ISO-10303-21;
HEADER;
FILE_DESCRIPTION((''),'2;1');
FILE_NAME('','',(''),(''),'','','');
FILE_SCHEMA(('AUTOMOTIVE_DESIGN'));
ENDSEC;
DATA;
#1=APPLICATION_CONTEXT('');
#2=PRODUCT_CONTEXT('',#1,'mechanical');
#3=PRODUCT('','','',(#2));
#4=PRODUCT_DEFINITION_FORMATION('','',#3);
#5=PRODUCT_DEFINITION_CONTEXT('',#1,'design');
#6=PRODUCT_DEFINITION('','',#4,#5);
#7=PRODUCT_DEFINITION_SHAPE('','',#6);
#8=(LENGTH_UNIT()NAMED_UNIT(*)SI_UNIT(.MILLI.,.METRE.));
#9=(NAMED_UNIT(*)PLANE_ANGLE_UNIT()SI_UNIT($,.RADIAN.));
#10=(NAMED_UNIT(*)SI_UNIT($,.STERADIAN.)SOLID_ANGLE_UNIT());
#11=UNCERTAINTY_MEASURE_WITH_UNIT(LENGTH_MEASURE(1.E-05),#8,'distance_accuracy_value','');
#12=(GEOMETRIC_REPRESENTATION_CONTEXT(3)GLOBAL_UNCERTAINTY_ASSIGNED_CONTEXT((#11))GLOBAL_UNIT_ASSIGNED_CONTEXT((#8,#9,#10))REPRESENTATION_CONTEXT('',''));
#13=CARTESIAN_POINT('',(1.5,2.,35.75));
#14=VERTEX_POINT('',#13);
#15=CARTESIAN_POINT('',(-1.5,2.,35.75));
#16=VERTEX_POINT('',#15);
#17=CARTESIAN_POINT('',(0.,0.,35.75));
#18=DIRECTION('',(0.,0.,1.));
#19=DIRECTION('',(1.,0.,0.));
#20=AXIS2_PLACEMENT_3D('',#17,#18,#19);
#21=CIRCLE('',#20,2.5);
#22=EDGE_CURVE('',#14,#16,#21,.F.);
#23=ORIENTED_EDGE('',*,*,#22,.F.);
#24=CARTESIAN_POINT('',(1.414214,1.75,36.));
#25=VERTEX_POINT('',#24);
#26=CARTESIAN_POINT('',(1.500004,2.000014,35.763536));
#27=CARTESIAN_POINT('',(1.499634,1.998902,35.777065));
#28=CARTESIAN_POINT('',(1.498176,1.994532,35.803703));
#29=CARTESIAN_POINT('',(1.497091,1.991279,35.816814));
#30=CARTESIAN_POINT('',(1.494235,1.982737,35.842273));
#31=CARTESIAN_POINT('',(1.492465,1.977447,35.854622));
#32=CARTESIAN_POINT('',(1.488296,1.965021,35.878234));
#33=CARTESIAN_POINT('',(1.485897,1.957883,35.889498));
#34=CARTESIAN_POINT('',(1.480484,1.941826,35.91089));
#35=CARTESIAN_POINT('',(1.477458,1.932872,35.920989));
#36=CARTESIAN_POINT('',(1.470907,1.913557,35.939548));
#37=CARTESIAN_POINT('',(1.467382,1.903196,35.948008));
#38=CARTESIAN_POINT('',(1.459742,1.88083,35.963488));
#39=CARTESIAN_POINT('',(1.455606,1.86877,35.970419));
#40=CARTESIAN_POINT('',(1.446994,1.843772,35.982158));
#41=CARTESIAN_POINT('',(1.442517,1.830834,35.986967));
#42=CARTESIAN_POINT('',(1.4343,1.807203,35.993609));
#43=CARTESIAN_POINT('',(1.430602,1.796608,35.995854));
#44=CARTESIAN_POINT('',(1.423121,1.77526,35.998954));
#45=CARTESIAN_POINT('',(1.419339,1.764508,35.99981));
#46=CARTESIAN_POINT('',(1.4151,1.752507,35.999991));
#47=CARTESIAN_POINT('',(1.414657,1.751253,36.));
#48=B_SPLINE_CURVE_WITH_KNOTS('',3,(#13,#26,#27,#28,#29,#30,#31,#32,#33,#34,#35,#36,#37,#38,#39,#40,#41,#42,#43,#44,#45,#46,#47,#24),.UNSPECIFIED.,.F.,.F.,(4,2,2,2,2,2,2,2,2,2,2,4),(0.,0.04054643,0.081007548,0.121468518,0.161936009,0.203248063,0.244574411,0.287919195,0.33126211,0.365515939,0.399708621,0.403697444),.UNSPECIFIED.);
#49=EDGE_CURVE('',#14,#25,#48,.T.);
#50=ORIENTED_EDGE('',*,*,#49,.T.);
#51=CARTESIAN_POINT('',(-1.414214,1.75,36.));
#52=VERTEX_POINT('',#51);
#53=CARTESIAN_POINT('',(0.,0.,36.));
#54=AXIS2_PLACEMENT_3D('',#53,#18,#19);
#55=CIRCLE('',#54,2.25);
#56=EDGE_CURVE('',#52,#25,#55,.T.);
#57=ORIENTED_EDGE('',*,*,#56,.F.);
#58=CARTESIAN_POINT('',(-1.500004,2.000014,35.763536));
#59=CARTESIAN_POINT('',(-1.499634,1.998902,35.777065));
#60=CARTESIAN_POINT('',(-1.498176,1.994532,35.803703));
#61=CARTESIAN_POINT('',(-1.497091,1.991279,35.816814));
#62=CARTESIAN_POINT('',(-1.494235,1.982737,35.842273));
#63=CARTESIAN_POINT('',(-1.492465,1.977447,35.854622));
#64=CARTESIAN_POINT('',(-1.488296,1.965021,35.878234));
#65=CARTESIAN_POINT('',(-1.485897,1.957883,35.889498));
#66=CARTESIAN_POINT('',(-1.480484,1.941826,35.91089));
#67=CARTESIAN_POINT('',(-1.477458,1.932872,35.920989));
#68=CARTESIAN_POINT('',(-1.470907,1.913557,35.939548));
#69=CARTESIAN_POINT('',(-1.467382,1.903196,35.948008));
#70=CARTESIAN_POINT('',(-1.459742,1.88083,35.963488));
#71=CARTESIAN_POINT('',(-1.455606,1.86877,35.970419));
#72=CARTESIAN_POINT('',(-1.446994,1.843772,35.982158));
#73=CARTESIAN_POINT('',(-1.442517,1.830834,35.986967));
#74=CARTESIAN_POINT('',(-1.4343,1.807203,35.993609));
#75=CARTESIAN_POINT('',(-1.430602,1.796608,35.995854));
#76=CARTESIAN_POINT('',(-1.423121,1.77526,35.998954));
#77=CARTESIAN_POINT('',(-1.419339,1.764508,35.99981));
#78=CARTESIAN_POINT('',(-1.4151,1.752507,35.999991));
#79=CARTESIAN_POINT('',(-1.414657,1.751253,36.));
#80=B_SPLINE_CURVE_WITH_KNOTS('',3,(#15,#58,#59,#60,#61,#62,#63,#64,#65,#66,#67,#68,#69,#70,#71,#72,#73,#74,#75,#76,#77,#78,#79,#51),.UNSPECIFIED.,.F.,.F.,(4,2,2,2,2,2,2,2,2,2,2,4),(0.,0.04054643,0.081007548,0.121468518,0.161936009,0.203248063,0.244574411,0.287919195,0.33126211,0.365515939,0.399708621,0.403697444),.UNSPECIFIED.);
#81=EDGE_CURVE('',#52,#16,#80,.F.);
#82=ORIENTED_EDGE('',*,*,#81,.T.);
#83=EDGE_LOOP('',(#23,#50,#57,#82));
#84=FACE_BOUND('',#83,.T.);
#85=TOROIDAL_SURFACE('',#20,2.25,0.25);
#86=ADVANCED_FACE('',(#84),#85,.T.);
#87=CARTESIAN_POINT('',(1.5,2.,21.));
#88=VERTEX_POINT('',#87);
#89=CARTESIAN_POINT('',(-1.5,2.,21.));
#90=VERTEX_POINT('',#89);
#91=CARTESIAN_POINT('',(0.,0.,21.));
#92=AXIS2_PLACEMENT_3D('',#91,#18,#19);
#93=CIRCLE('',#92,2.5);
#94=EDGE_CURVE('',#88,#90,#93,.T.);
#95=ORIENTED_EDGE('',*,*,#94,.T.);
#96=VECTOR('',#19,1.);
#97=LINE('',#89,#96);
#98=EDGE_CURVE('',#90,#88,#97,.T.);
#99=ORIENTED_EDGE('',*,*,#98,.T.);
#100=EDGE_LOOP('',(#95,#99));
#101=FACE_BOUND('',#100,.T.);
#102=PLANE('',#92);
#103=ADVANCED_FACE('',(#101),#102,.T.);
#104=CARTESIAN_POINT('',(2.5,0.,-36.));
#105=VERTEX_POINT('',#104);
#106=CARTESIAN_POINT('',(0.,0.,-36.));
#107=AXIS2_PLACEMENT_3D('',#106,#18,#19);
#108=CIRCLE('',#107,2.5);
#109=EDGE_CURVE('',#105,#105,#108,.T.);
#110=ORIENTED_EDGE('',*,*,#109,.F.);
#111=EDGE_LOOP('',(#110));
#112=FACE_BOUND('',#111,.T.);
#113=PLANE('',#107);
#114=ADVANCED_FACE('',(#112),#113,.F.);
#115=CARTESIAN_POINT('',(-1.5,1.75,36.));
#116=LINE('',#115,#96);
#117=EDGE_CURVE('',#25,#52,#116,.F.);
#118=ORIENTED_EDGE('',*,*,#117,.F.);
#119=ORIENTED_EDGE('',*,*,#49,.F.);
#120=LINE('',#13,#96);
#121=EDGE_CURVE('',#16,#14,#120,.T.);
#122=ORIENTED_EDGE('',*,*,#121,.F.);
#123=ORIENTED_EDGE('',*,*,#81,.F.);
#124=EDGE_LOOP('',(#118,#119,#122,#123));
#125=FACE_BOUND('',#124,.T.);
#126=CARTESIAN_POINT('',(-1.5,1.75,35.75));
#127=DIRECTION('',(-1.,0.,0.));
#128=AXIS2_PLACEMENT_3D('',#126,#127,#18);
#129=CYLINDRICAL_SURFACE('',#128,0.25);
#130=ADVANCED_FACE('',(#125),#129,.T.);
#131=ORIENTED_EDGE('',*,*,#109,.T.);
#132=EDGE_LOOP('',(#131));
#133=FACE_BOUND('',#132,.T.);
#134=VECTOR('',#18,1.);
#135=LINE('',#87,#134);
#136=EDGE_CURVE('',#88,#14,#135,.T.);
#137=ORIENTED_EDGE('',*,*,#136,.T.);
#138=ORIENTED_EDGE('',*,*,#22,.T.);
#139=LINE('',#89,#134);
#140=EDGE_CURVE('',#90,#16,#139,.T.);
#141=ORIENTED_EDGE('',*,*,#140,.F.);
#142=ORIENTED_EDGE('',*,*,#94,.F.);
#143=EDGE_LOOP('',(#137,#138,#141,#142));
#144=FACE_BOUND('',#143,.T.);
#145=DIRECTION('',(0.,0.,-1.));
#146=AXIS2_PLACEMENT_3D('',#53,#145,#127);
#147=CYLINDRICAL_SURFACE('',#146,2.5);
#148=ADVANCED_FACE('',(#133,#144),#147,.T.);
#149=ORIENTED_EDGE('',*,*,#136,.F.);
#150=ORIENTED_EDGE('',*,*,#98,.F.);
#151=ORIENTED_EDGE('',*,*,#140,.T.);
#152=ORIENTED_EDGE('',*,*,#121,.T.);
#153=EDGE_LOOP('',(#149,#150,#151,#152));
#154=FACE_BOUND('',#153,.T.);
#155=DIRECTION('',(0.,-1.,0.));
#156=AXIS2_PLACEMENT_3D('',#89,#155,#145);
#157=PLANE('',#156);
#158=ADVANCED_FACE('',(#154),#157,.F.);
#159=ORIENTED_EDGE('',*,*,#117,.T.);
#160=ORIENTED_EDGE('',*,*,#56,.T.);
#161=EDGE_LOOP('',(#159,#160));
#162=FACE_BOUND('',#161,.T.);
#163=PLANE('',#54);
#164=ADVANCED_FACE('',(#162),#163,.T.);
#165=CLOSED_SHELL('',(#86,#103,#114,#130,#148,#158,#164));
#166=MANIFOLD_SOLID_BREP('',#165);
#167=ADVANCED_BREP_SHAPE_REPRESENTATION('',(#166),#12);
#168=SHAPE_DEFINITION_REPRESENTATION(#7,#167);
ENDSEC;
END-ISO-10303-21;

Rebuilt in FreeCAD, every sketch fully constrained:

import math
import FreeCAD as App
import Part
import Sketcher
Q = App.Units.Quantity


def edges_at(feature, points):
    """Names of the edges that pass closest to the given points."""
    edges = feature.Shape.Edges
    near = lambda p: min(range(len(edges)), key=lambda i: edges[i].distToShape(Part.Vertex(*p))[0])
    return sorted({f"Edge{near(p) + 1}" for p in points})

doc = App.newDocument("Part")
params = doc.addObject("Spreadsheet::Sheet", "Params")
for row, (alias, value) in enumerate([
    ("sketch1_diameter", "5 mm"),
    ("pad1_length", "72 mm"),
    ("sketch2_radius", "2.5 mm"),
    ("sketch2_width", "3 mm"),
    ("pocket1_length", "15 mm"),
    ("fillet_radius", "0.25 mm"),
], start=1):
    params.set(f"A{row}", alias)
    params.set(f"B{row}", "=" + value)
    params.setAlias(f"B{row}", alias)

body = doc.addObject("PartDesign::Body", "Body")

sketch1 = body.newObject("Sketcher::SketchObject", "Sketch")
sketch1.AttachmentSupport = (doc.getObject("XY_Plane"), [""])
sketch1.MapMode = "FlatFace"
sketch1.addGeometry(Part.Circle(App.Vector(0, 0, 0), App.Vector(0, 0, 1), 2.5), False)
sketch1.addConstraint([
    Sketcher.Constraint("Coincident", 0, 3, -1, 1),
    Sketcher.Constraint("Diameter", 0, Q("5 mm")),
])
sketch1.setExpression("Constraints[1]", "Params.sketch1_diameter")
pad1 = body.newObject("PartDesign::Pad", "Pad")
pad1.Profile = sketch1
pad1.setExpression("Length", "Params.pad1_length")
pad1.Midplane = True

sketch2 = body.newObject("Sketcher::SketchObject", "Sketch001")
sketch2.AttachmentSupport = (doc.getObject("XY_Plane"), [""])
sketch2.MapMode = "FlatFace"
sketch2.AttachmentOffset = App.Placement(App.Vector(0, 0, 36), App.Rotation())
sketch2.addGeometry([
    Part.LineSegment(App.Vector(-1.5, 2, 0), App.Vector(1.5, 2, 0)),
    Part.ArcOfCircle(Part.Circle(App.Vector(0, 0, 0), App.Vector(0, 0, 1), 2.5), math.radians(53), math.radians(127)),
], False)
sketch2.addConstraint([
    Sketcher.Constraint("Coincident", 0, 1, 1, 2),
    Sketcher.Constraint("Coincident", 1, 1, 0, 2),
    Sketcher.Constraint("Horizontal", 0),
    Sketcher.Constraint("Coincident", 1, 3, -1, 1),
    Sketcher.Constraint("Radius", 1, Q("2.5 mm")),
    Sketcher.Constraint("DistanceX", 0, 1, 0, 2, Q("3 mm")),
])
sketch2.setExpression("Constraints[4]", "Params.sketch2_radius")
sketch2.setExpression("Constraints[5]", "Params.sketch2_width")
pocket1 = body.newObject("PartDesign::Pocket", "Pocket")
pocket1.Profile = sketch2
pocket1.setExpression("Length", "Params.pocket1_length")
doc.recompute()

fillet = body.newObject("PartDesign::Fillet", "Fillet")
fillet.Base = (pocket1, edges_at(pocket1, [(-1.118, -2.236, 36), (0, 2, 36)]))
fillet.setExpression("Radius", "Params.fillet_radius")

doc.recompute()
